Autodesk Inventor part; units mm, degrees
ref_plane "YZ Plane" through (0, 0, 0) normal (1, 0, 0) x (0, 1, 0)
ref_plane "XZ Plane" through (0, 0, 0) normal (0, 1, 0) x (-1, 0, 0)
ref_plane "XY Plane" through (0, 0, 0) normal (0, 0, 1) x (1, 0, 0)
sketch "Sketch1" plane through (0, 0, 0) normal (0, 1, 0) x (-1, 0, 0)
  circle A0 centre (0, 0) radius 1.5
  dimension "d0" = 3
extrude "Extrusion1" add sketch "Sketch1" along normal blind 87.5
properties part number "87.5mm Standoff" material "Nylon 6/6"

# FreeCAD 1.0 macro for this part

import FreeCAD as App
import Part
import Sketcher

V = App.Vector

doc = App.newDocument("Part")
params = doc.addObject("Spreadsheet::Sheet", "Params")
for row, (alias, value) in enumerate([
    ("sketch1_diameter", "3 mm"),
    ("pad1_length", "87.5 mm"),
], start=1):
    params.set(f"A{row}", alias)
    params.set(f"B{row}", "=" + value)
    params.setAlias(f"B{row}", alias)

body = doc.addObject("PartDesign::Body", "Body")

sketch1 = doc.addObject("Sketcher::SketchObject", "Sketch")
body.addObject(sketch1)
sketch1.AttachmentSupport = (doc.XZ_Plane, [""])
sketch1.MapMode = "FlatFace"
sketch1.addGeometry(Part.Circle(V(0, 0, 0), V(0, 0, 1), 1.5), False)
sketch1.addConstraint([
    Sketcher.Constraint("Coincident", 0, 3, -1, 1),
    Sketcher.Constraint("Diameter", 0, 3.0),
])
sketch1.setExpression("Constraints[1]", "Params.sketch1_diameter")
pad1 = doc.addObject("PartDesign::Pad", "Pad")
body.addObject(pad1)
pad1.Profile = sketch1
pad1.setExpression("Length", "Params.pad1_length")
pad1.Reversed = True

doc.recompute()
